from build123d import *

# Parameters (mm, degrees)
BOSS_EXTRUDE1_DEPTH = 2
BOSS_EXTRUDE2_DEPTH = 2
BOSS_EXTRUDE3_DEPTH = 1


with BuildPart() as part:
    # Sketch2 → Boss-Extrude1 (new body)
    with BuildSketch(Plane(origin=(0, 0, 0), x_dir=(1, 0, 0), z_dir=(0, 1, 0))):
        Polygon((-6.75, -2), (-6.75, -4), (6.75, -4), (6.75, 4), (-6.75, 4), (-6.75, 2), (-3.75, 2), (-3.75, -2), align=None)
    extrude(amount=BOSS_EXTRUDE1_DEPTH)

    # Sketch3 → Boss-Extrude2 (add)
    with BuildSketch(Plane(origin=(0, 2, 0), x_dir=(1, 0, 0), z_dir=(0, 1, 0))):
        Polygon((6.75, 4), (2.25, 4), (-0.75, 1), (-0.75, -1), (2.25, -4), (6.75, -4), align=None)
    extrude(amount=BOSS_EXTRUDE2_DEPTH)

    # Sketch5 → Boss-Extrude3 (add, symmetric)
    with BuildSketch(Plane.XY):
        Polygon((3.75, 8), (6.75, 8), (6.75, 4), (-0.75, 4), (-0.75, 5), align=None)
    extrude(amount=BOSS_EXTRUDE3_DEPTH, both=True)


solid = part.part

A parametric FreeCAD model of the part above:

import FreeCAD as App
import Part
import Sketcher
from FreeCAD import Vector

doc = App.newDocument("Part")
body = doc.addObject("PartDesign::Body", "Body")

# Sketch on XZ plane
sketch1 = doc.addObject("Sketcher::SketchObject", "Sketch")
body.addObject(sketch1)
sketch1.AttachmentSupport = (doc.XZ_Plane, [""])
sketch1.MapMode = "FlatFace"
sketch1.addGeometry([
    Part.LineSegment(Vector(-6.8, 2, 0), Vector(-6.8, 4, 0)),  # 0
    Part.LineSegment(Vector(-6.8, 4, 0), Vector(6.8, 4, 0)),  # 1
    Part.LineSegment(Vector(6.8, 4, 0), Vector(6.8, -4, 0)),  # 2
    Part.LineSegment(Vector(6.8, -4, 0), Vector(-6.8, -4, 0)),  # 3
    Part.LineSegment(Vector(-6.8, -4, 0), Vector(-6.8, -2, 0)),  # 4
    Part.LineSegment(Vector(-6.8, -2, 0), Vector(-3.8, -2, 0)),  # 5
    Part.LineSegment(Vector(-3.8, -2, 0), Vector(-3.8, 2, 0)),  # 6
    Part.LineSegment(Vector(-3.8, 2, 0), Vector(-6.8, 2, 0)),  # 7
], False)
sketch1.addConstraint([
    Sketcher.Constraint("Coincident", 0, 2, 1, 1),
    Sketcher.Constraint("Coincident", 1, 2, 2, 1),
    Sketcher.Constraint("Coincident", 2, 2, 3, 1),
    Sketcher.Constraint("Coincident", 3, 2, 4, 1),
    Sketcher.Constraint("Coincident", 4, 2, 5, 1),
    Sketcher.Constraint("Coincident", 5, 2, 6, 1),
    Sketcher.Constraint("Coincident", 6, 2, 7, 1),
    Sketcher.Constraint("Coincident", 7, 2, 0, 1),
    Sketcher.Constraint("Vertical", 0),
    Sketcher.Constraint("Horizontal", 1),
    Sketcher.Constraint("Vertical", 2),
    Sketcher.Constraint("Horizontal", 3),
    Sketcher.Constraint("Vertical", 4),
    Sketcher.Constraint("Horizontal", 5),
    Sketcher.Constraint("Vertical", 6),
    Sketcher.Constraint("Horizontal", 7),
    Sketcher.Constraint("Symmetric", 0, 2, 2, 2, -1, 1),
    Sketcher.Constraint("Symmetric", 4, 2, 7, 2, -1),
    Sketcher.Constraint("DistanceX", 5, 1, 5, 2, 3.0),
    Sketcher.Constraint("DistanceY", 0, 1, 0, 2, 2.0),
    Sketcher.Constraint("DistanceY", 2, 2, 2, 1, 8.0),
    Sketcher.Constraint("DistanceX", 1, 1, 1, 2, 13.5),
])
pad1 = doc.addObject("PartDesign::Pad", "Pad")
body.addObject(pad1)
pad1.Profile = sketch1
pad1.Length = 2
pad1.Reversed = True

# Sketch on XZ plane
sketch2 = doc.addObject("Sketcher::SketchObject", "Sketch001")
body.addObject(sketch2)
sketch2.AttachmentSupport = (doc.XZ_Plane, [""])
sketch2.MapMode = "FlatFace"
sketch2.AttachmentOffset = App.Placement(Vector(0, 0, -2), App.Rotation())
sketch2.addGeometry([
    Part.LineSegment(Vector(6.8, -4, 0), Vector(2.2, -4, 0)),  # 0
    Part.LineSegment(Vector(2.2, -4, 0), Vector(-0.8, -1, 0)),  # 1
    Part.LineSegment(Vector(-0.8, -1, 0), Vector(-0.8, 1, 0)),  # 2
    Part.LineSegment(Vector(-0.8, 1, 0), Vector(2.2, 4, 0)),  # 3
    Part.LineSegment(Vector(2.2, 4, 0), Vector(6.8, 4, 0)),  # 4
    Part.LineSegment(Vector(6.8, 4, 0), Vector(6.8, -4, 0)),  # 5
], False)
sketch2.addConstraint([
    Sketcher.Constraint("Coincident", 0, 2, 1, 1),
    Sketcher.Constraint("Coincident", 1, 2, 2, 1),
    Sketcher.Constraint("Coincident", 2, 2, 3, 1),
    Sketcher.Constraint("Coincident", 3, 2, 4, 1),
    Sketcher.Constraint("Coincident", 4, 2, 5, 1),
    Sketcher.Constraint("Coincident", 5, 2, 0, 1),
    Sketcher.Constraint("Horizontal", 0),
    Sketcher.Constraint("Vertical", 2),
    Sketcher.Constraint("Horizontal", 4),
    Sketcher.Constraint("Vertical", 5),
    Sketcher.Constraint("Symmetric", 0, 2, 3, 2, -1),
    Sketcher.Constraint("Perpendicular", 1, 3),
    Sketcher.Constraint("Equal", 1, 3),
    Sketcher.Constraint("DistanceY", 2, 1, 2, 2, 2.0),
    Sketcher.Constraint("DistanceY", 5, 2, 5, 1, 8.0),
    Sketcher.Constraint("DistanceX", 0, 2, 0, 1, 4.5),
    Sketcher.Constraint("DistanceX", -1, 1, 0, 2, 2.25),
])
pad2 = doc.addObject("PartDesign::Pad", "Pad001")
body.addObject(pad2)
pad2.Profile = sketch2
pad2.Length = 2
pad2.Reversed = True

# Sketch on XY plane
sketch3 = doc.addObject("Sketcher::SketchObject", "Sketch002")
body.addObject(sketch3)
sketch3.AttachmentSupport = (doc.XY_Plane, [""])
sketch3.MapMode = "FlatFace"
sketch3.addGeometry([
    Part.LineSegment(Vector(6.8, 8, 0), Vector(3.8, 8, 0)),  # 0
    Part.LineSegment(Vector(3.8, 8, 0), Vector(-0.8, 5, 0)),  # 1
    Part.LineSegment(Vector(-0.8, 5, 0), Vector(-0.8, 4, 0)),  # 2
    Part.LineSegment(Vector(-0.8, 4, 0), Vector(6.8, 4, 0)),  # 3
    Part.LineSegment(Vector(6.8, 4, 0), Vector(6.8, 8, 0)),  # 4
], False)
sketch3.addConstraint([
    Sketcher.Constraint("Coincident", 0, 2, 1, 1),
    Sketcher.Constraint("Coincident", 1, 2, 2, 1),
    Sketcher.Constraint("Coincident", 2, 2, 3, 1),
    Sketcher.Constraint("Coincident", 3, 2, 4, 1),
    Sketcher.Constraint("Coincident", 4, 2, 0, 1),
    Sketcher.Constraint("Horizontal", 0),
    Sketcher.Constraint("Vertical", 2),
    Sketcher.Constraint("Horizontal", 3),
    Sketcher.Constraint("Vertical", 4),
    Sketcher.Constraint("DistanceX", 0, 2, 0, 1, 3.0),
    Sketcher.Constraint("DistanceY", 2, 2, 2, 1, 1.0),
    Sketcher.Constraint("DistanceY", 4, 1, 4, 2, 4.0),
    Sketcher.Constraint("DistanceX", 3, 1, 3, 2, 7.5),
    Sketcher.Constraint("DistanceY", -1, 1, 0, 2, 8.0),
    Sketcher.Constraint("DistanceX", -1, 1, 0, 2, 3.75),
])
pad3 = doc.addObject("PartDesign::Pad", "Pad002")
body.addObject(pad3)
pad3.Profile = sketch3
pad3.Length = 2
pad3.Midplane = True

doc.recompute()
